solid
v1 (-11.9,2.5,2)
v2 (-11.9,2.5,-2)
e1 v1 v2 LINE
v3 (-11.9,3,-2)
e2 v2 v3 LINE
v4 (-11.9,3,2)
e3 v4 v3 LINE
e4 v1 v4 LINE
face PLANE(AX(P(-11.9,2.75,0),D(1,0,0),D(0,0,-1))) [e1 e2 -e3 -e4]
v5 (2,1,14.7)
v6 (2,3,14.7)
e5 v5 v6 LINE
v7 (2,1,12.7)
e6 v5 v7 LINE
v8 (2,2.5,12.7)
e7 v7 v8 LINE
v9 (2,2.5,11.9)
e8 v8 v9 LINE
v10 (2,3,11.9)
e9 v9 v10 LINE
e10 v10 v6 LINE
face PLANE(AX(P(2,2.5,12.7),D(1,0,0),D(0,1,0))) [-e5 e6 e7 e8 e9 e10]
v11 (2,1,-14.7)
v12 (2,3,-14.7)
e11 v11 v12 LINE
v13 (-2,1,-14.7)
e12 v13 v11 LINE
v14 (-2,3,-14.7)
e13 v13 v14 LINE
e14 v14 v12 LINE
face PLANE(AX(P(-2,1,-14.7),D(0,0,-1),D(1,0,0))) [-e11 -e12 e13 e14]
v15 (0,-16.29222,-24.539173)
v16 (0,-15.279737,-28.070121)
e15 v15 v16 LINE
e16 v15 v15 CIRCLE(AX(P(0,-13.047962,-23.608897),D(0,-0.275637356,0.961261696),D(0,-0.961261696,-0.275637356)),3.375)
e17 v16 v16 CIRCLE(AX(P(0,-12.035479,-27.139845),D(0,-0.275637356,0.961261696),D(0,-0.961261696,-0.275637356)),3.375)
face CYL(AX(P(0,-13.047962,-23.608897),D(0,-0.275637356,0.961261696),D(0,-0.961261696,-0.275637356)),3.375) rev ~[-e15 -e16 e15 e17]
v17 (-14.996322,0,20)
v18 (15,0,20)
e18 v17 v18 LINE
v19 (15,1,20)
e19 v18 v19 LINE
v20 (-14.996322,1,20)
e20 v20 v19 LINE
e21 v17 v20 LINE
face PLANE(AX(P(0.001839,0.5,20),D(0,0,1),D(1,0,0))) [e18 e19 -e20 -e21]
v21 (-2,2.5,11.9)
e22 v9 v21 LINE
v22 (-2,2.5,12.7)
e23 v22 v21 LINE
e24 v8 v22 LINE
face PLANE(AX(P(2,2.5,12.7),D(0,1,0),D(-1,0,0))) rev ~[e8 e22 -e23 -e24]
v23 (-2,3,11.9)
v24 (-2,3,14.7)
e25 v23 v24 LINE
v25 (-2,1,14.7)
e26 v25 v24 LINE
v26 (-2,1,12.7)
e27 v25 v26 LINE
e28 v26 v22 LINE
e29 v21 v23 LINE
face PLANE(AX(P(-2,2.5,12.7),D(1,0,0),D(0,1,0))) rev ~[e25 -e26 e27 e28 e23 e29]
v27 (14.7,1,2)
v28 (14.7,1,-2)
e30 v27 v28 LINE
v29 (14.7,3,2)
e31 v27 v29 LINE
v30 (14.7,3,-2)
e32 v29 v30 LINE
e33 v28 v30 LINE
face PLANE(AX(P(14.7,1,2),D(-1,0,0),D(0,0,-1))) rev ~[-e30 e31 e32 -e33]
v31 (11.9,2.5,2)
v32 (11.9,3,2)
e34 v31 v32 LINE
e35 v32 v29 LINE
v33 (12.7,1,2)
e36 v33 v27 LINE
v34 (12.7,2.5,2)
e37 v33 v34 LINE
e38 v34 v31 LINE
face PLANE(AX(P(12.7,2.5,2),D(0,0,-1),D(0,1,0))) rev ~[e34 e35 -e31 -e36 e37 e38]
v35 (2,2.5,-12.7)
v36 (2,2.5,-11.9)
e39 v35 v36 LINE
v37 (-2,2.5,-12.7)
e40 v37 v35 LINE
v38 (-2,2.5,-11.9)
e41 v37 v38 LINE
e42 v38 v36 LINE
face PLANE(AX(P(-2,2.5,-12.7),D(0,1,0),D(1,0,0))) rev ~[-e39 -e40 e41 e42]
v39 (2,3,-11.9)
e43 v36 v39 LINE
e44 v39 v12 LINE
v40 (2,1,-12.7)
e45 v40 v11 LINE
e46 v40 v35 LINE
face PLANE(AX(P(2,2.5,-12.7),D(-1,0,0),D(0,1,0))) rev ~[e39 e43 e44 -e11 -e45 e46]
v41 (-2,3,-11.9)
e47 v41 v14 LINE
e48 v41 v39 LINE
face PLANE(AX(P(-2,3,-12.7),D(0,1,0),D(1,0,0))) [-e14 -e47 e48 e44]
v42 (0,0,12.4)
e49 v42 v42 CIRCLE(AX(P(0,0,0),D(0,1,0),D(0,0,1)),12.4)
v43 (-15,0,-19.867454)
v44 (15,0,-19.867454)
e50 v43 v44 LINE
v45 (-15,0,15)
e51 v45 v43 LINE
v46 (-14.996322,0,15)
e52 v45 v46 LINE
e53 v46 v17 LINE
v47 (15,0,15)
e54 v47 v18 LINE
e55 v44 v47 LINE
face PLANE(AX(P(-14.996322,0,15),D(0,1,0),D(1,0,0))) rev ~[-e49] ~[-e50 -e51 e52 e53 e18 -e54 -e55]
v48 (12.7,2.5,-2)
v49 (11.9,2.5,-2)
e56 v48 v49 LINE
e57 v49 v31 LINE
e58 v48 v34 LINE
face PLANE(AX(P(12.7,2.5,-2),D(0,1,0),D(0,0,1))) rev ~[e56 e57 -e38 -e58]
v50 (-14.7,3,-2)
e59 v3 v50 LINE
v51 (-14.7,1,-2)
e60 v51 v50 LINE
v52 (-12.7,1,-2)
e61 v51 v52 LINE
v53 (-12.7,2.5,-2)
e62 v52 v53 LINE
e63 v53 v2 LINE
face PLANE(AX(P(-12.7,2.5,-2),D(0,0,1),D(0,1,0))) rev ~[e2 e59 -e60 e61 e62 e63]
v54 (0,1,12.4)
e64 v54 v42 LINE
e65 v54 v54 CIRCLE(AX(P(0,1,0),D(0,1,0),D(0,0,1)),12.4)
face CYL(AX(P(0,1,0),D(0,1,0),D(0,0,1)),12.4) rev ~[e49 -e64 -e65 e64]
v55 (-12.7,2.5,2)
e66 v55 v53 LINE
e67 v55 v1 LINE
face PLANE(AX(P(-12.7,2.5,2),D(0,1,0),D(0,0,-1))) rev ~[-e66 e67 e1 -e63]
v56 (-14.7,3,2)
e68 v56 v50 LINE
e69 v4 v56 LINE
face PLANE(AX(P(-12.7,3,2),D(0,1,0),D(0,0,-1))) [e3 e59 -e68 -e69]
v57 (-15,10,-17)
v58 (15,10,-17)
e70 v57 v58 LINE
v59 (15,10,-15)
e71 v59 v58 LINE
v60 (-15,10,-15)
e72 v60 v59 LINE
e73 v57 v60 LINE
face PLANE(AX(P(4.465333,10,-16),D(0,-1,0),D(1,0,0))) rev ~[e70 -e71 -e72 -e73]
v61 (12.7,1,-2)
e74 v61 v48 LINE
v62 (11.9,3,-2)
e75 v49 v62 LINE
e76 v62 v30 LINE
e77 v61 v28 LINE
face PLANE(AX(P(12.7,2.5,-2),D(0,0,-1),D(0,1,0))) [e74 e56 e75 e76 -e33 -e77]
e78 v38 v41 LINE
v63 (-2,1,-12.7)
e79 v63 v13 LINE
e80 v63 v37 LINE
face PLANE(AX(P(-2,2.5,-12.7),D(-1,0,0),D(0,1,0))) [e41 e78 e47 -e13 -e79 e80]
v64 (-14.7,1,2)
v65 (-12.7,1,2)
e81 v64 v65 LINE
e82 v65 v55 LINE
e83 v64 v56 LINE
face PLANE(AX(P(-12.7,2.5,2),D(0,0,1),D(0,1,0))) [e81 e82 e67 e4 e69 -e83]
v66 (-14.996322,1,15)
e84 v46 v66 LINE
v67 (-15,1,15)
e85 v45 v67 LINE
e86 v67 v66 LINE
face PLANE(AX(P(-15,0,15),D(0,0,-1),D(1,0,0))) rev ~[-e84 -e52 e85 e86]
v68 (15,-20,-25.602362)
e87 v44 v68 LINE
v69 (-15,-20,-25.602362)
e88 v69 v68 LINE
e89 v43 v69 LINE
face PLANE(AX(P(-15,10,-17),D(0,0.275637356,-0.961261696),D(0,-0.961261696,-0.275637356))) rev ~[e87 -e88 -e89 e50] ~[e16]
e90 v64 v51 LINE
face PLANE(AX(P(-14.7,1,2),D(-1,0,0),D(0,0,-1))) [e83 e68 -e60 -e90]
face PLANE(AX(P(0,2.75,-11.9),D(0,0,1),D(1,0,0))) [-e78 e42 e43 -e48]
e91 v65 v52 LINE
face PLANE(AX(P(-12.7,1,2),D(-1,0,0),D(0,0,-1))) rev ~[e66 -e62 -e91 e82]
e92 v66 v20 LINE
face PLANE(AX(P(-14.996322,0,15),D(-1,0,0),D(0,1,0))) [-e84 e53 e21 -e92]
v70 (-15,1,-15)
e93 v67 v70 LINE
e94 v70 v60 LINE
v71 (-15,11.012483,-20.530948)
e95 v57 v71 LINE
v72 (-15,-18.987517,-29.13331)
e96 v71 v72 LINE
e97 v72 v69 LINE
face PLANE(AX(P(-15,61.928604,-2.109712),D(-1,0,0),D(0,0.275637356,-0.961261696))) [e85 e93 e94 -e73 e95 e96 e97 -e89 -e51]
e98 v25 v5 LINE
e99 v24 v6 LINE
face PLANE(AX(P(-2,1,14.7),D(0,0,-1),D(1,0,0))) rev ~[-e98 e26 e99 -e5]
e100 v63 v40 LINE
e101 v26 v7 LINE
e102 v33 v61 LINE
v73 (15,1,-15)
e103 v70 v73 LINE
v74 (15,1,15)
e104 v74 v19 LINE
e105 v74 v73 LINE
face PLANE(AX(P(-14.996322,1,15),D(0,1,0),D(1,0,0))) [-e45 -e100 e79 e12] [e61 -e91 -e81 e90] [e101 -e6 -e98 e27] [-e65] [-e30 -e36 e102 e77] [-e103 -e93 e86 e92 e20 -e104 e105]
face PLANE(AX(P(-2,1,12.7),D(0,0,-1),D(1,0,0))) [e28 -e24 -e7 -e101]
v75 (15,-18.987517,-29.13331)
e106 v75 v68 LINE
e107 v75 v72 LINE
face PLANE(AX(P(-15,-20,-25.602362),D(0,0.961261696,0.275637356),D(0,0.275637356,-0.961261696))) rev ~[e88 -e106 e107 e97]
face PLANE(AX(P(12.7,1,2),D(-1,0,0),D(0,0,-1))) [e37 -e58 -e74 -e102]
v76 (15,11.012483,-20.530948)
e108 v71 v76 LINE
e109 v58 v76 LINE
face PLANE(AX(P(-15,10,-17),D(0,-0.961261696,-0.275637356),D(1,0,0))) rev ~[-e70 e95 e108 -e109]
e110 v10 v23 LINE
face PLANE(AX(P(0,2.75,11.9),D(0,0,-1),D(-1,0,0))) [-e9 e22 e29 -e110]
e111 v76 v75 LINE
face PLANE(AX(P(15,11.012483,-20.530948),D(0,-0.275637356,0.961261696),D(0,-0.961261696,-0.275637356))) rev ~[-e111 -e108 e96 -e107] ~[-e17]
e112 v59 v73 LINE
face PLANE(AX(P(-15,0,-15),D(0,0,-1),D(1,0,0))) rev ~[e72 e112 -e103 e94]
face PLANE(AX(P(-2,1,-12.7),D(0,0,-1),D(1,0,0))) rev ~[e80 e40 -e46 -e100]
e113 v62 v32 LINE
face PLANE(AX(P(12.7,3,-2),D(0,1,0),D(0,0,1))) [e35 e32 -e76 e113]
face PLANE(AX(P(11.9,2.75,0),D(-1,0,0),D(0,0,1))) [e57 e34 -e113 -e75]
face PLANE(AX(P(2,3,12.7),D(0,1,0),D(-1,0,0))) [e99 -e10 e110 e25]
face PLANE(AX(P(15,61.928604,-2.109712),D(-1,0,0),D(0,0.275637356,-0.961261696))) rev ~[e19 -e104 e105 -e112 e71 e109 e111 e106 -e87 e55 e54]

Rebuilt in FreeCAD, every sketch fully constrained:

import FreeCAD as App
import Part
import Sketcher
from FreeCAD import Vector
Q = App.Units.Quantity

doc = App.newDocument("Part")
body = doc.addObject("PartDesign::Body", "Body")

sketch1 = body.newObject("Sketcher::SketchObject", "Sketch")
sketch1.AttachmentSupport = (doc.getObject("XZ_Plane"), [""])
sketch1.MapMode = "FlatFace"
sketch1.addGeometry([
    Part.LineSegment(Vector(-15, -15, 0), Vector(-15, 15, 0)),
    Part.LineSegment(Vector(-15, 15, 0), Vector(15, 15, 0)),
    Part.LineSegment(Vector(15, 15, 0), Vector(15, -15, 0)),
    Part.LineSegment(Vector(15, -15, 0), Vector(-15, -15, 0)),
], False)
sketch1.addConstraint([
    Sketcher.Constraint("Coincident", 0, 2, 1, 1),
    Sketcher.Constraint("Coincident", 1, 2, 2, 1),
    Sketcher.Constraint("Coincident", 2, 2, 3, 1),
    Sketcher.Constraint("Coincident", 3, 2, 0, 1),
    Sketcher.Constraint("Vertical", 0),
    Sketcher.Constraint("Horizontal", 1),
    Sketcher.Constraint("Vertical", 2),
    Sketcher.Constraint("Horizontal", 3),
    Sketcher.Constraint("Symmetric", 0, 2, 2, 2, -1, 1),
    Sketcher.Constraint("Equal", 3, 0),
    Sketcher.Constraint("DistanceX", 1, 1, 1, 2, 30.0),
])
pad1 = body.newObject("PartDesign::Pad", "Pad")
pad1.Profile = sketch1
pad1.Length = 1
pad1.Reversed = True

sketch2 = body.newObject("Sketcher::SketchObject", "Sketch001")
sketch2.AttachmentSupport = (doc.getObject("XZ_Plane"), [""])
sketch2.MapMode = "FlatFace"
sketch2.AttachmentOffset = App.Placement(Vector(0, 0, -1), App.Rotation())
sketch2.addGeometry(Part.Circle(Vector(0, 0, 0), Vector(0, 0, 1), 12), False)
sketch2.addConstraint([
    Sketcher.Constraint("Coincident", 0, 3, -1, 1),
    Sketcher.Constraint("Diameter", 0, 24.8),
])
pocket1 = body.newObject("PartDesign::Pocket", "Pocket")
pocket1.Profile = sketch2
pocket1.Type = "ThroughAll"
pocket1.Reversed = True

sketch3 = body.newObject("Sketcher::SketchObject", "Sketch002")
sketch3.AttachmentSupport = (doc.getObject("XZ_Plane"), [""])
sketch3.MapMode = "FlatFace"
sketch3.AttachmentOffset = App.Placement(Vector(0, 0, -1), App.Rotation())
sketch3.addGeometry([
    Part.LineSegment(Vector(12.7, -2, 0), Vector(12.7, 2, 0)),
    Part.LineSegment(Vector(12.7, 2, 0), Vector(14.7, 2, 0)),
    Part.LineSegment(Vector(14.7, 2, 0), Vector(14.7, -2, 0)),
    Part.LineSegment(Vector(14.7, -2, 0), Vector(12.7, -2, 0)),
    Part.LineSegment(Vector(-14.7, -2, 0), Vector(-14.7, 2, 0)),
    Part.LineSegment(Vector(-14.7, 2, 0), Vector(-12.7, 2, 0)),
    Part.LineSegment(Vector(-12.7, 2, 0), Vector(-12.7, -2, 0)),
    Part.LineSegment(Vector(-12.7, -2, 0), Vector(-14.7, -2, 0)),
    Part.LineSegment(Vector(-2, -14.7, 0), Vector(-2, -12.7, 0)),
    Part.LineSegment(Vector(-2, -12.7, 0), Vector(2, -12.7, 0)),
    Part.LineSegment(Vector(2, -12.7, 0), Vector(2, -14.7, 0)),
    Part.LineSegment(Vector(2, -14.7, 0), Vector(-2, -14.7, 0)),
    Part.LineSegment(Vector(-2, 12.7, 0), Vector(-2, 14.7, 0)),
    Part.LineSegment(Vector(-2, 14.7, 0), Vector(2, 14.7, 0)),
    Part.LineSegment(Vector(2, 14.7, 0), Vector(2, 12.7, 0)),
    Part.LineSegment(Vector(2, 12.7, 0), Vector(-2, 12.7, 0)),
], False)
sketch3.addConstraint([
    Sketcher.Constraint("Coincident", 0, 2, 1, 1),
    Sketcher.Constraint("Coincident", 1, 2, 2, 1),
    Sketcher.Constraint("Coincident", 2, 2, 3, 1),
    Sketcher.Constraint("Coincident", 3, 2, 0, 1),
    Sketcher.Constraint("Coincident", 4, 2, 5, 1),
    Sketcher.Constraint("Coincident", 5, 2, 6, 1),
    Sketcher.Constraint("Coincident", 6, 2, 7, 1),
    Sketcher.Constraint("Coincident", 7, 2, 4, 1),
    Sketcher.Constraint("Coincident", 8, 2, 9, 1),
    Sketcher.Constraint("Coincident", 9, 2, 10, 1),
    Sketcher.Constraint("Coincident", 10, 2, 11, 1),
    Sketcher.Constraint("Coincident", 11, 2, 8, 1),
    Sketcher.Constraint("Coincident", 12, 2, 13, 1),
    Sketcher.Constraint("Coincident", 13, 2, 14, 1),
    Sketcher.Constraint("Coincident", 14, 2, 15, 1),
    Sketcher.Constraint("Coincident", 15, 2, 12, 1),
    Sketcher.Constraint("Vertical", 0),
    Sketcher.Constraint("Horizontal", 1),
    Sketcher.Constraint("Vertical", 2),
    Sketcher.Constraint("Horizontal", 3),
    Sketcher.Constraint("Vertical", 4),
    Sketcher.Constraint("Horizontal", 5),
    Sketcher.Constraint("Vertical", 6),
    Sketcher.Constraint("Horizontal", 7),
    Sketcher.Constraint("Vertical", 8),
    Sketcher.Constraint("Horizontal", 9),
    Sketcher.Constraint("Vertical", 10),
    Sketcher.Constraint("Horizontal", 11),
    Sketcher.Constraint("Vertical", 12),
    Sketcher.Constraint("Horizontal", 13),
    Sketcher.Constraint("Vertical", 14),
    Sketcher.Constraint("Horizontal", 15),
    Sketcher.Constraint("Symmetric", 2, 2, 4, 2, -1, 1),
    Sketcher.Constraint("Symmetric", 0, 2, 6, 2, -1, 1),
    Sketcher.Constraint("Symmetric", 10, 2, 12, 2, -1, 1),
    Sketcher.Constraint("Symmetric", 8, 2, 14, 2, -1, 1),
    Sketcher.Constraint("Horizontal", 1, 2, 4, 2),
    Sketcher.Constraint("Vertical", 11, 2, 12, 2),
    Sketcher.Constraint("Equal", 15, 0),
    Sketcher.Constraint("Equal", 7, 8),
    Sketcher.Constraint("DistanceX", 1, 1, 1, 2, 2.0),
    Sketcher.Constraint("DistanceX", 9, 1, 9, 2, 4.0),
    Sketcher.Constraint("DistanceX", -1, 1, 0, 2, 12.7),
    Sketcher.Constraint("DistanceY", 8, 2, -1, 1, 12.7),
])
pad2 = body.newObject("PartDesign::Pad", "Pad001")
pad2.Profile = sketch3
pad2.Length = 2
pad2.Reversed = True

sketch4 = body.newObject("Sketcher::SketchObject", "Sketch003")
sketch4.AttachmentSupport = (doc.getObject("YZ_Plane"), [""])
sketch4.MapMode = "FlatFace"
sketch4.AttachmentOffset = App.Placement(Vector(0, 0, 12.7), App.Rotation())
sketch4.addGeometry([
    Part.LineSegment(Vector(3, -2, 0), Vector(2.5, -2, 0)),
    Part.LineSegment(Vector(2.5, -2, 0), Vector(2.5, 2, 0)),
    Part.LineSegment(Vector(2.5, 2, 0), Vector(3, 2, 0)),
    Part.LineSegment(Vector(3, 2, 0), Vector(3, -2, 0)),
], False)
sketch4.addConstraint([
    Sketcher.Constraint("Coincident", 0, 2, 1, 1),
    Sketcher.Constraint("Coincident", 1, 2, 2, 1),
    Sketcher.Constraint("Coincident", 2, 2, 3, 1),
    Sketcher.Constraint("Coincident", 3, 2, 0, 1),
    Sketcher.Constraint("Horizontal", 0),
    Sketcher.Constraint("Vertical", 1),
    Sketcher.Constraint("Horizontal", 2),
    Sketcher.Constraint("Vertical", 3),
    Sketcher.Constraint("DistanceY", 1, 1, 1, 2, 4.0),
    Sketcher.Constraint("DistanceX", 0, 2, 0, 1, 0.5),
    Sketcher.Constraint("DistanceY", 0, 2, -1, 1, 2.0),
    Sketcher.Constraint("DistanceX", -1, 1, 2, 2, 3.0),
])
pad3 = body.newObject("PartDesign::Pad", "Pad002")
pad3.Profile = sketch4
pad3.Length = 0.8
pad3.Reversed = True

sketch5 = body.newObject("Sketcher::SketchObject", "Sketch004")
sketch5.AttachmentSupport = (doc.getObject("XY_Plane"), [""])
sketch5.MapMode = "FlatFace"
sketch5.AttachmentOffset = App.Placement(Vector(0, 0, 12.7), App.Rotation())
sketch5.addGeometry([
    Part.LineSegment(Vector(2, 3, 0), Vector(2, 2.5, 0)),
    Part.LineSegment(Vector(2, 2.5, 0), Vector(-2, 2.5, 0)),
    Part.LineSegment(Vector(-2, 2.5, 0), Vector(-2, 3, 0)),
    Part.LineSegment(Vector(-2, 3, 0), Vector(2, 3, 0)),
], False)
sketch5.addConstraint([
    Sketcher.Constraint("Coincident", 0, 2, 1, 1),
    Sketcher.Constraint("Coincident", 1, 2, 2, 1),
    Sketcher.Constraint("Coincident", 2, 2, 3, 1),
    Sketcher.Constraint("Coincident", 3, 2, 0, 1),
    Sketcher.Constraint("Vertical", 0),
    Sketcher.Constraint("Horizontal", 1),
    Sketcher.Constraint("Vertical", 2),
    Sketcher.Constraint("Horizontal", 3),
    Sketcher.Constraint("DistanceX", 1, 2, 1, 1, 4.0),
    Sketcher.Constraint("DistanceY", 0, 2, 0, 1, 0.5),
    Sketcher.Constraint("DistanceX", -1, 1, 0, 2, 2.0),
    Sketcher.Constraint("DistanceY", -1, 1, 2, 2, 3.0),
])
pad4 = body.newObject("PartDesign::Pad", "Pad003")
pad4.Profile = sketch5
pad4.Length = 0.8
pad4.Reversed = True

sketch6 = body.newObject("Sketcher::SketchObject", "Sketch005")
sketch6.AttachmentSupport = (doc.getObject("YZ_Plane"), [""])
sketch6.MapMode = "FlatFace"
sketch6.AttachmentOffset = App.Placement(Vector(0, 0, -12.7), App.Rotation())
sketch6.addGeometry([
    Part.LineSegment(Vector(3, 2, 0), Vector(2.5, 2, 0)),
    Part.LineSegment(Vector(2.5, 2, 0), Vector(2.5, -2, 0)),
    Part.LineSegment(Vector(2.5, -2, 0), Vector(3, -2, 0)),
    Part.LineSegment(Vector(3, -2, 0), Vector(3, 2, 0)),
], False)
sketch6.addConstraint([
    Sketcher.Constraint("Coincident", 0, 2, 1, 1),
    Sketcher.Constraint("Coincident", 1, 2, 2, 1),
    Sketcher.Constraint("Coincident", 2, 2, 3, 1),
    Sketcher.Constraint("Coincident", 3, 2, 0, 1),
    Sketcher.Constraint("Horizontal", 0),
    Sketcher.Constraint("Vertical", 1),
    Sketcher.Constraint("Horizontal", 2),
    Sketcher.Constraint("Vertical", 3),
    Sketcher.Constraint("DistanceY", 1, 2, 1, 1, 4.0),
    Sketcher.Constraint("DistanceX", 0, 2, 0, 1, 0.5),
    Sketcher.Constraint("DistanceY", -1, 1, 0, 2, 2.0),
    Sketcher.Constraint("DistanceX", -1, 1, 2, 2, 3.0),
])
pad5 = body.newObject("PartDesign::Pad", "Pad004")
pad5.Profile = sketch6
pad5.Length = 0.8

sketch7 = body.newObject("Sketcher::SketchObject", "Sketch006")
sketch7.AttachmentSupport = (doc.getObject("XY_Plane"), [""])
sketch7.MapMode = "FlatFace"
sketch7.AttachmentOffset = App.Placement(Vector(0, 0, -12.7), App.Rotation())
sketch7.addGeometry([
    Part.LineSegment(Vector(-2, 3, 0), Vector(-2, 2.5, 0)),
    Part.LineSegment(Vector(-2, 2.5, 0), Vector(2, 2.5, 0)),
    Part.LineSegment(Vector(2, 2.5, 0), Vector(2, 3, 0)),
    Part.LineSegment(Vector(2, 3, 0), Vector(-2, 3, 0)),
], False)
sketch7.addConstraint([
    Sketcher.Constraint("Coincident", 0, 2, 1, 1),
    Sketcher.Constraint("Coincident", 1, 2, 2, 1),
    Sketcher.Constraint("Coincident", 2, 2, 3, 1),
    Sketcher.Constraint("Coincident", 3, 2, 0, 1),
    Sketcher.Constraint("Vertical", 0),
    Sketcher.Constraint("Horizontal", 1),
    Sketcher.Constraint("Vertical", 2),
    Sketcher.Constraint("Horizontal", 3),
    Sketcher.Constraint("DistanceX", 1, 1, 1, 2, 4.0),
    Sketcher.Constraint("DistanceY", 0, 2, 0, 1, 0.5),
    Sketcher.Constraint("DistanceX", 0, 2, -1, 1, 2.0),
    Sketcher.Constraint("DistanceY", -1, 1, 2, 2, 3.0),
])
pad6 = body.newObject("PartDesign::Pad", "Pad005")
pad6.Profile = sketch7
pad6.Length = 0.8

sketch8 = body.newObject("Sketcher::SketchObject", "Sketch007")
sketch8.AttachmentSupport = (doc.getObject("XZ_Plane"), [""])
sketch8.MapMode = "FlatFace"
sketch8.addGeometry([
    Part.LineSegment(Vector(-15, -15, 0), Vector(-15, -17, 0)),
    Part.LineSegment(Vector(-15, -17, 0), Vector(23.9, -17, 0)),
    Part.LineSegment(Vector(23.9, -17, 0), Vector(23.9, -15, 0)),
    Part.LineSegment(Vector(23.9, -15, 0), Vector(-15, -15, 0)),
], False)
sketch8.addConstraint([
    Sketcher.Constraint("Coincident", 0, 2, 1, 1),
    Sketcher.Constraint("Coincident", 1, 2, 2, 1),
    Sketcher.Constraint("Coincident", 2, 2, 3, 1),
    Sketcher.Constraint("Coincident", 3, 2, 0, 1),
    Sketcher.Constraint("Vertical", 0),
    Sketcher.Constraint("Horizontal", 1),
    Sketcher.Constraint("Vertical", 2),
    Sketcher.Constraint("Horizontal", 3),
    Sketcher.Constraint("DistanceY", 0, 2, 0, 1, 2.0),
    Sketcher.Constraint("DistanceX", 0, 2, -1, 1, 15.0),
    Sketcher.Constraint("DistanceY", 0, 2, -1, 1, 17.0),
    Sketcher.Constraint("DistanceX", 1, 1, 1, 2, 38.930667),
])
pad7 = body.newObject("PartDesign::Pad", "Pad006")
pad7.Profile = sketch8
pad7.Length = 10
pad7.Reversed = True
body2 = doc.addObject("PartDesign::Body", "Body001")

sketch9 = body2.newObject("Sketcher::SketchObject", "Sketch008")
sketch9.AttachmentSupport = (doc.getObject("YZ_Plane001"), [""])
sketch9.MapMode = "FlatFace"
sketch9.AttachmentOffset = App.Placement(Vector(0, 0, -15), App.Rotation())
sketch9.addGeometry([
    Part.LineSegment(Vector(-20, -25.6, 0), Vector(10, -17, 0)),
    Part.LineSegment(Vector(10, -17, 0), Vector(11.4, -21.8, 0)),
    Part.LineSegment(Vector(11.4, -21.8, 0), Vector(-18.6, -30.4, 0)),
    Part.LineSegment(Vector(-18.6, -30.4, 0), Vector(-20, -25.6, 0)),
], False)
sketch9.addConstraint([
    Sketcher.Constraint("Coincident", 0, 2, 1, 1),
    Sketcher.Constraint("Coincident", 1, 2, 2, 1),
    Sketcher.Constraint("Coincident", 2, 2, 3, 1),
    Sketcher.Constraint("Coincident", 3, 2, 0, 1),
    Sketcher.Constraint("Perpendicular", 0, 1),
    Sketcher.Constraint("Perpendicular", 1, 2),
    Sketcher.Constraint("Perpendicular", 2, 3),
    Sketcher.Constraint("Angle", 0, Q("16 deg")),
    Sketcher.Constraint("DistanceX", -1, 1, 0, 2, 10.0),
    Sketcher.Constraint("DistanceY", 0, 2, -1, 1, 17.0),
    Sketcher.Constraint("DistanceX", 3, 2, -1, 1, 20.0),
    Sketcher.Constraint("DistanceX", -1, 1, 1, 2, 11.365738),
])
pad8 = body2.newObject("PartDesign::Pad", "Pad007")
pad8.Profile = sketch9
pad8.Length = 30
body.AllowCompound = True
doc.recompute()

boolean = body.newObject("PartDesign::Boolean", "Boolean")
boolean.Type = "Fuse"
boolean.addObjects([body2])

sketch10 = body.newObject("Sketcher::SketchObject", "Sketch009")
sketch10.AttachmentSupport = (doc.getObject("YZ_Plane"), [""])
sketch10.MapMode = "FlatFace"
sketch10.AttachmentOffset = App.Placement(Vector(0, 0, -15), App.Rotation())
sketch10.addGeometry([
    Part.LineSegment(Vector(0, -25, 0), Vector(0, -17, 0)),
    Part.LineSegment(Vector(0, -17, 0), Vector(10, -17, 0)),
    Part.LineSegment(Vector(10, -17, 0), Vector(11.4, -21.8, 0)),
    Part.LineSegment(Vector(11.4, -21.8, 0), Vector(0, -25, 0)),
], False)
sketch10.addConstraint([
    Sketcher.Constraint("Coincident", 0, 2, 1, 1),
    Sketcher.Constraint("Coincident", 1, 2, 2, 1),
    Sketcher.Constraint("Coincident", 2, 2, 3, 1),
    Sketcher.Constraint("Coincident", 3, 2, 0, 1),
    Sketcher.Constraint("Vertical", 0),
    Sketcher.Constraint("Horizontal", 1),
    Sketcher.Constraint("PointOnObject", 0, 2, -2),
    Sketcher.Constraint("Perpendicular", 2, 3),
    Sketcher.Constraint("DistanceX", 1, 1, 1, 2, 10.0),
    Sketcher.Constraint("Angle", 2, Q("-74 deg")),
    Sketcher.Constraint("DistanceY", 0, 2, -1, 1, 17.0),
    Sketcher.Constraint("DistanceY", 0, 1, 0, 2, 8.021968),
])
pad9 = body.newObject("PartDesign::Pad", "Pad008")
pad9.Profile = sketch10
pad9.Length = 30

sketch11 = body.newObject("Sketcher::SketchObject", "Sketch010")
sketch11.AttachmentSupport = (doc.getObject("XY_Plane"), [""])
sketch11.MapMode = "FlatFace"
sketch11.AttachmentOffset = App.Placement(Vector(0, 0, -17), App.Rotation())
sketch11.addGeometry([
    Part.LineSegment(Vector(24, 10, 0), Vector(24, 0, 0)),
    Part.LineSegment(Vector(24, 0, 0), Vector(15, 0, 0)),
    Part.LineSegment(Vector(15, 0, 0), Vector(15, 10, 0)),
    Part.LineSegment(Vector(15, 10, 0), Vector(24, 10, 0)),
], False)
sketch11.addConstraint([
    Sketcher.Constraint("Coincident", 0, 2, 1, 1),
    Sketcher.Constraint("Coincident", 1, 2, 2, 1),
    Sketcher.Constraint("Coincident", 2, 2, 3, 1),
    Sketcher.Constraint("Coincident", 3, 2, 0, 1),
    Sketcher.Constraint("Vertical", 0),
    Sketcher.Constraint("Horizontal", 1),
    Sketcher.Constraint("Vertical", 2),
    Sketcher.Constraint("Horizontal", 3),
    Sketcher.Constraint("PointOnObject", 0, 2, -1),
    Sketcher.Constraint("DistanceY", 0, 2, 0, 1, 10.0),
    Sketcher.Constraint("DistanceX", -1, 1, 1, 2, 15.0),
    Sketcher.Constraint("DistanceX", 1, 2, 1, 1, 8.930667),
])
pocket2 = body.newObject("PartDesign::Pocket", "Pocket001")
pocket2.Profile = sketch11
pocket2.Type = "ThroughAll"
pocket2.Midplane = True

sketch12 = body.newObject("Sketcher::SketchObject", "Sketch011")
sketch12.AttachmentSupport = (doc.getObject("XY_Plane"), [""])
sketch12.MapMode = "FlatFace"
sketch12.AttachmentOffset = App.Placement(Vector(0, 0, 15), App.Rotation())
sketch12.addGeometry([
    Part.LineSegment(Vector(-15, 1, 0), Vector(-15, 0, 0)),
    Part.LineSegment(Vector(-15, 0, 0), Vector(15, 0, 0)),
    Part.LineSegment(Vector(15, 0, 0), Vector(15, 1, 0)),
    Part.LineSegment(Vector(15, 1, 0), Vector(-15, 1, 0)),
], False)
sketch12.addConstraint([
    Sketcher.Constraint("Coincident", 0, 2, 1, 1),
    Sketcher.Constraint("Coincident", 1, 2, 2, 1),
    Sketcher.Constraint("Coincident", 2, 2, 3, 1),
    Sketcher.Constraint("Coincident", 3, 2, 0, 1),
    Sketcher.Constraint("Vertical", 0),
    Sketcher.Constraint("Horizontal", 1),
    Sketcher.Constraint("Vertical", 2),
    Sketcher.Constraint("Horizontal", 3),
    Sketcher.Constraint("PointOnObject", 0, 2, -1),
    Sketcher.Constraint("DistanceY", 0, 2, 0, 1, 1.0),
    Sketcher.Constraint("DistanceX", -1, 1, 1, 2, 15.0),
    Sketcher.Constraint("DistanceX", 1, 1, 1, 2, 29.996322),
])
pad10 = body.newObject("PartDesign::Pad", "Pad009")
pad10.Profile = sketch12
pad10.Length = 5

sketch13 = body.newObject("Sketcher::SketchObject", "Sketch012")
sketch13.Placement = App.Placement(Vector(0, -25.264073, -7.244356), App.Rotation(Vector(1, 0, 0), Vector(0, -0.275637356, 0.961261696), Vector(0, -0.961261696, -0.275637356), "ZXY"))
sketch13.addGeometry([
    Part.LineSegment(Vector(-15, -19.1, 0), Vector(-15, -22.8, 0)),
    Part.LineSegment(Vector(-15, -22.8, 0), Vector(15, -22.8, 0)),
    Part.LineSegment(Vector(15, -22.8, 0), Vector(15, -19.1, 0)),
    Part.LineSegment(Vector(15, -19.1, 0), Vector(-15, -19.1, 0)),
], False)
sketch13.addConstraint([
    Sketcher.Constraint("Coincident", 0, 2, 1, 1),
    Sketcher.Constraint("Coincident", 1, 2, 2, 1),
    Sketcher.Constraint("Coincident", 2, 2, 3, 1),
    Sketcher.Constraint("Coincident", 3, 2, 0, 1),
    Sketcher.Constraint("Vertical", 0),
    Sketcher.Constraint("Horizontal", 1),
    Sketcher.Constraint("Vertical", 2),
    Sketcher.Constraint("Horizontal", 3),
    Sketcher.Constraint("DistanceX", 1, 1, 1, 2, 30.0),
    Sketcher.Constraint("DistanceX", 0, 2, -1, 1, 15.0),
    Sketcher.Constraint("DistanceY", 0, 2, 0, 1, 3.673244),
    Sketcher.Constraint("DistanceY", 0, 2, -1, 1, 22.771066),
])
pad11 = body.newObject("PartDesign::Pad", "Pad010")
pad11.Profile = sketch13
pad11.Length = 90
pad11.Reversed = True

sketch14 = body.newObject("Sketcher::SketchObject", "Sketch013")
sketch14.AttachmentSupport = (doc.getObject("YZ_Plane"), [""])
sketch14.MapMode = "FlatFace"
sketch14.AttachmentOffset = App.Placement(Vector(0, 0, 15), App.Rotation())
sketch14.addGeometry([
    Part.LineSegment(Vector(11.4, -21.8, 0), Vector(11, -20.5, 0)),
    Part.LineSegment(Vector(11, -20.5, 0), Vector(-19, -29.1, 0)),
    Part.LineSegment(Vector(-19, -29.1, 0), Vector(-18.6, -30.4, 0)),
    Part.LineSegment(Vector(-18.6, -30.4, 0), Vector(11.4, -21.8, 0)),
], False)
sketch14.addConstraint([
    Sketcher.Constraint("Coincident", 0, 2, 1, 1),
    Sketcher.Constraint("Coincident", 1, 2, 2, 1),
    Sketcher.Constraint("Coincident", 2, 2, 3, 1),
    Sketcher.Constraint("Coincident", 3, 2, 0, 1),
    Sketcher.Constraint("Perpendicular", 0, 1),
    Sketcher.Constraint("Perpendicular", 1, 2),
    Sketcher.Constraint("Perpendicular", 2, 3),
    Sketcher.Constraint("Angle", 0, Q("106 deg")),
    Sketcher.Constraint("DistanceX", 1, 2, 0, 2, 30.0),
    Sketcher.Constraint("DistanceY", 0, 2, -1, 1, 20.530948),
    Sketcher.Constraint("DistanceX", 2, 2, -1, 1, 18.634262),
    Sketcher.Constraint("DistanceY", 2, 2, 0, 2, 9.834308),
])
pocket3 = body.newObject("PartDesign::Pocket", "Pocket002")
pocket3.Profile = sketch14
pocket3.Type = "ThroughAll"

sketch15 = body.newObject("Sketcher::SketchObject", "Sketch014")
sketch15.Placement = App.Placement(Vector(0, 6.276556, -21.888953), App.Rotation(Vector(-1, 0, 0), Vector(0, 0.961261696, 0.275637356), Vector(0, 0.275637356, -0.961261696), "ZXY"))
sketch15.addGeometry([
    Part.LineSegment(Vector(-15, 64, 0), Vector(-15, 8, 0)),
    Part.LineSegment(Vector(-15, 8, 0), Vector(15, 8, 0)),
    Part.LineSegment(Vector(15, 8, 0), Vector(15, 64, 0)),
    Part.LineSegment(Vector(15, 64, 0), Vector(-15, 64, 0)),
], False)
sketch15.addConstraint([
    Sketcher.Constraint("Coincident", 0, 2, 1, 1),
    Sketcher.Constraint("Coincident", 1, 2, 2, 1),
    Sketcher.Constraint("Coincident", 2, 2, 3, 1),
    Sketcher.Constraint("Coincident", 3, 2, 0, 1),
    Sketcher.Constraint("Vertical", 0),
    Sketcher.Constraint("Horizontal", 1),
    Sketcher.Constraint("Vertical", 2),
    Sketcher.Constraint("Horizontal", 3),
    Sketcher.Constraint("DistanceX", 1, 1, 1, 2, 30.0),
    Sketcher.Constraint("DistanceX", 0, 2, -1, 1, 15.0),
    Sketcher.Constraint("DistanceY", 0, 2, 0, 1, 55.569719),
    Sketcher.Constraint("DistanceY", -1, 1, 2, 2, 63.717799),
])
pocket4 = body.newObject("PartDesign::Pocket", "Pocket003")
pocket4.Profile = sketch15
pocket4.Length = 10

sketch16 = body.newObject("Sketcher::SketchObject", "Sketch015")
sketch16.Placement = App.Placement(Vector(0, 7.832437, 2.245915), App.Rotation(Vector(1, 0, 0), Vector(0, 0.275637356, -0.961261696), Vector(0, 0.961261696, 0.275637356), "ZXY"))
sketch16.addGeometry([
    Part.LineSegment(Vector(-15, 22.8, 0), Vector(-15, 19.1, 0)),
    Part.LineSegment(Vector(-15, 19.1, 0), Vector(15, 19.1, 0)),
    Part.LineSegment(Vector(15, 19.1, 0), Vector(15, 22.8, 0)),
    Part.LineSegment(Vector(15, 22.8, 0), Vector(-15, 22.8, 0)),
], False)
sketch16.addConstraint([
    Sketcher.Constraint("Coincident", 0, 2, 1, 1),
    Sketcher.Constraint("Coincident", 1, 2, 2, 1),
    Sketcher.Constraint("Coincident", 2, 2, 3, 1),
    Sketcher.Constraint("Coincident", 3, 2, 0, 1),
    Sketcher.Constraint("Vertical", 0),
    Sketcher.Constraint("Horizontal", 1),
    Sketcher.Constraint("Vertical", 2),
    Sketcher.Constraint("Horizontal", 3),
    Sketcher.Constraint("DistanceX", 1, 1, 1, 2, 30.0),
    Sketcher.Constraint("DistanceX", 0, 2, -1, 1, 15.0),
    Sketcher.Constraint("DistanceY", 0, 2, 0, 1, 3.673244),
    Sketcher.Constraint("DistanceY", -1, 1, 0, 2, 19.097822),
])
pad12 = body.newObject("PartDesign::Pad", "Pad011")
pad12.Profile = sketch16
pad12.Length = 76.2

sketch17 = body.newObject("Sketcher::SketchObject", "Sketch016")
sketch17.Placement = App.Placement(Vector(0, 81.080578, 23.249482), App.Rotation(Vector(1, 0, 0), Vector(0, 0.275637356, -0.961261696), Vector(0, 0.961261696, 0.275637356), "ZXY"))
sketch17.addGeometry([
    Part.LineSegment(Vector(-15, 22.8, 0), Vector(-15, 19.1, 0)),
    Part.LineSegment(Vector(-15, 19.1, 0), Vector(15, 19.1, 0)),
    Part.LineSegment(Vector(15, 19.1, 0), Vector(15, 22.8, 0)),
    Part.LineSegment(Vector(15, 22.8, 0), Vector(-15, 22.8, 0)),
], False)
sketch17.addConstraint([
    Sketcher.Constraint("Coincident", 0, 2, 1, 1),
    Sketcher.Constraint("Coincident", 1, 2, 2, 1),
    Sketcher.Constraint("Coincident", 2, 2, 3, 1),
    Sketcher.Constraint("Coincident", 3, 2, 0, 1),
    Sketcher.Constraint("Vertical", 0),
    Sketcher.Constraint("Horizontal", 1),
    Sketcher.Constraint("Vertical", 2),
    Sketcher.Constraint("Horizontal", 3),
    Sketcher.Constraint("DistanceX", 1, 1, 1, 2, 30.0),
    Sketcher.Constraint("DistanceX", 0, 2, -1, 1, 15.0),
    Sketcher.Constraint("DistanceY", 0, 2, 0, 1, 3.673244),
    Sketcher.Constraint("DistanceY", -1, 1, 0, 2, 19.097822),
])
pocket5 = body.newObject("PartDesign::Pocket", "Pocket004")
pocket5.Profile = sketch17
pocket5.Length = 25.4

sketch18 = body.newObject("Sketcher::SketchObject", "Sketch017")
sketch18.Placement = App.Placement(Vector(0, 56.664531, 16.248293), App.Rotation(Vector(1, 0, 0), Vector(0, 0.275637356, -0.961261696), Vector(0, 0.961261696, 0.275637356), "ZXY"))
sketch18.addGeometry([
    Part.LineSegment(Vector(-15, 22.8, 0), Vector(-15, 19.1, 0)),
    Part.LineSegment(Vector(-15, 19.1, 0), Vector(15, 19.1, 0)),
    Part.LineSegment(Vector(15, 19.1, 0), Vector(15, 22.8, 0)),
    Part.LineSegment(Vector(15, 22.8, 0), Vector(-15, 22.8, 0)),
], False)
sketch18.addConstraint([
    Sketcher.Constraint("Coincident", 0, 2, 1, 1),
    Sketcher.Constraint("Coincident", 1, 2, 2, 1),
    Sketcher.Constraint("Coincident", 2, 2, 3, 1),
    Sketcher.Constraint("Coincident", 3, 2, 0, 1),
    Sketcher.Constraint("Vertical", 0),
    Sketcher.Constraint("Horizontal", 1),
    Sketcher.Constraint("Vertical", 2),
    Sketcher.Constraint("Horizontal", 3),
    Sketcher.Constraint("DistanceX", 1, 1, 1, 2, 30.0),
    Sketcher.Constraint("DistanceX", 0, 2, -1, 1, 15.0),
    Sketcher.Constraint("DistanceY", 0, 2, 0, 1, 3.673244),
    Sketcher.Constraint("DistanceY", -1, 1, 0, 2, 19.097822),
])
pad13 = body.newObject("PartDesign::Pad", "Pad012")
pad13.Profile = sketch18
pad13.Length = 17.8

sketch19 = body.newObject("Sketcher::SketchObject", "Sketch018")
sketch19.Placement = App.Placement(Vector(0, 5.264073, -18.358005), App.Rotation(Vector(1, 0, 0), Vector(0, 0.961261696, 0.275637356), Vector(0, -0.275637356, 0.961261696), "ZXY"))
sketch19.addGeometry([
    Part.LineSegment(Vector(-15, 77, 0), Vector(-15, 5, 0)),
    Part.LineSegment(Vector(-15, 5, 0), Vector(15, 5, 0)),
    Part.LineSegment(Vector(15, 5, 0), Vector(15, 77, 0)),
    Part.LineSegment(Vector(15, 77, 0), Vector(-15, 77, 0)),
], False)
sketch19.addConstraint([
    Sketcher.Constraint("Coincident", 0, 2, 1, 1),
    Sketcher.Constraint("Coincident", 1, 2, 2, 1),
    Sketcher.Constraint("Coincident", 2, 2, 3, 1),
    Sketcher.Constraint("Coincident", 3, 2, 0, 1),
    Sketcher.Constraint("Vertical", 0),
    Sketcher.Constraint("Horizontal", 1),
    Sketcher.Constraint("Vertical", 2),
    Sketcher.Constraint("Horizontal", 3),
    Sketcher.Constraint("DistanceX", 1, 1, 1, 2, 30.0),
    Sketcher.Constraint("DistanceX", 0, 2, -1, 1, 15.0),
    Sketcher.Constraint("DistanceY", 0, 2, 0, 1, 71.821298),
    Sketcher.Constraint("DistanceY", -1, 1, 0, 2, 4.926782),
])
pocket6 = body.newObject("PartDesign::Pocket", "Pocket005")
pocket6.Profile = sketch19
pocket6.Length = 10

sketch20 = body.newObject("Sketcher::SketchObject", "Sketch019")
sketch20.Placement = App.Placement(Vector(0, 5.264073, -18.358005), App.Rotation(Vector(1, 0, 0), Vector(0, 0.961261696, 0.275637356), Vector(0, -0.275637356, 0.961261696), "ZXY"))
sketch20.addGeometry(Part.Circle(Vector(0, -19.1, 0), Vector(0, 0, 1), 3.4), False)
sketch20.addConstraint([
    Sketcher.Constraint("PointOnObject", 0, 3, -2),
    Sketcher.Constraint("Diameter", 0, 6.75),
    Sketcher.Constraint("DistanceY", 0, 3, -1, 1, 19.05),
])
pocket7 = body.newObject("PartDesign::Pocket", "Pocket006")
pocket7.Profile = sketch20
pocket7.Length = 10

doc.recompute()
